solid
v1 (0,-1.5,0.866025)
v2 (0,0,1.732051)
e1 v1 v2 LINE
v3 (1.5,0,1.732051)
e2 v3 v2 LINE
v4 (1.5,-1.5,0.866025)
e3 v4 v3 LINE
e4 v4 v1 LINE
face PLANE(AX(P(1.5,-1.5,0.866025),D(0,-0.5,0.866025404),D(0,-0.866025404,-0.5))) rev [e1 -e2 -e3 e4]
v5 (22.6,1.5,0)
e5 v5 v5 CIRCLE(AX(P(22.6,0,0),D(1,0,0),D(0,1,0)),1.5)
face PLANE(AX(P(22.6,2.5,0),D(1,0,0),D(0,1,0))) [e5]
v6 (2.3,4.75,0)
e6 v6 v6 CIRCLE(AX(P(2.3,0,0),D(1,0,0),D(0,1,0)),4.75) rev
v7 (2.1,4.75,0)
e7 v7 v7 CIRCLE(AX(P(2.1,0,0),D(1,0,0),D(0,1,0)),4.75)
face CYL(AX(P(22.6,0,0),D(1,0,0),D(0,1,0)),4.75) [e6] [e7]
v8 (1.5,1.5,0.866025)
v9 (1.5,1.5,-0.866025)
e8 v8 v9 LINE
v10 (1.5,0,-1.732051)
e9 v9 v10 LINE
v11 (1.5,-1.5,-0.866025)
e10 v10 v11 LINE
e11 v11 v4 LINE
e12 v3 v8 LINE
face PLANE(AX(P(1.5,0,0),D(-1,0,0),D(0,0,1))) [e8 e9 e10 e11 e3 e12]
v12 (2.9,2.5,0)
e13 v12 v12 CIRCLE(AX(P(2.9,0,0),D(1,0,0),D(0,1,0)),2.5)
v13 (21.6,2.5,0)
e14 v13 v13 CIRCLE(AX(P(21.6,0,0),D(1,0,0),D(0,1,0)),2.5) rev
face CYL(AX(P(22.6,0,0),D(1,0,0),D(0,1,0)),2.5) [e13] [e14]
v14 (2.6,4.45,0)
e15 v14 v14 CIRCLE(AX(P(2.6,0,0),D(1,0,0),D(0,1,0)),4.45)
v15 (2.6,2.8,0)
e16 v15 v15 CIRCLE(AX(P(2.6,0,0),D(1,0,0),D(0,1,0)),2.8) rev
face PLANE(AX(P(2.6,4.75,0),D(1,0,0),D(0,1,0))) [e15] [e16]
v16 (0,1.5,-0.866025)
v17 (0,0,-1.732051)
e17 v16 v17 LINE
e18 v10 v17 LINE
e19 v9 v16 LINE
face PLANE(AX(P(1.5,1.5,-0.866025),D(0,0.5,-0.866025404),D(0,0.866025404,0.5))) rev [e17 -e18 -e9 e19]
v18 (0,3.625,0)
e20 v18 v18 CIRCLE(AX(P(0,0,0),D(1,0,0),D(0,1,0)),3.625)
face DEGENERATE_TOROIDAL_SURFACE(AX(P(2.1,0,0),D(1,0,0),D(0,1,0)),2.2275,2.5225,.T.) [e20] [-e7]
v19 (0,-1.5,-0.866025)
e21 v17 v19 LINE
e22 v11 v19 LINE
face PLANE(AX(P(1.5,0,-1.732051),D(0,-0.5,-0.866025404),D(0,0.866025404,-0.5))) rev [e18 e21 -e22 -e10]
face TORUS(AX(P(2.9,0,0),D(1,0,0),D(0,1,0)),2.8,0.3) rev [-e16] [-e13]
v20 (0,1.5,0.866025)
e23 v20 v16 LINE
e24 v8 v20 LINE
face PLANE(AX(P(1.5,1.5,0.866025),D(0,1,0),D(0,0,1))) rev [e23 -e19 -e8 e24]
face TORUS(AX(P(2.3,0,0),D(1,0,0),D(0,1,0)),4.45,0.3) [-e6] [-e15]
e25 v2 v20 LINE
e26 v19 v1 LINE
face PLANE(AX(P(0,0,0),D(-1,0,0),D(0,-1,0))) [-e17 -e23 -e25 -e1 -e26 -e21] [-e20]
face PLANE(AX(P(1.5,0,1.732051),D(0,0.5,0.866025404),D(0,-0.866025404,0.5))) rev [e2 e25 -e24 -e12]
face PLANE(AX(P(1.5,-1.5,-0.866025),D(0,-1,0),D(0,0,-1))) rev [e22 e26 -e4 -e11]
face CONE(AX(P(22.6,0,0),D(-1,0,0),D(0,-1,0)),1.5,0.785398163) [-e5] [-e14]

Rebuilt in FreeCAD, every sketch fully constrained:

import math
import FreeCAD as App
import Part
import Sketcher

V = App.Vector
Q = App.Units.Quantity


def edges_at(feature, points):
    """Names of the edges that pass closest to the given points."""
    edges = feature.Shape.Edges
    near = lambda p: min(range(len(edges)), key=lambda i: edges[i].distToShape(Part.Vertex(*p))[0])
    return sorted({f"Edge{near(p) + 1}" for p in points})


def add_polygon(sketch, points):
    """Adds a closed chain of lines whose ends are joined by coincident constraints."""
    first, n = sketch.GeometryCount, len(points)
    for a, b in zip(points, points[1:] + points[:1]):
        sketch.addGeometry(Part.LineSegment(App.Vector(*a, 0), App.Vector(*b, 0)), False)
    for i in range(n):
        sketch.addConstraint(Sketcher.Constraint("Coincident", first + i, 2, first + (i + 1) % n, 1))

doc = App.newDocument("Part")
body = doc.addObject("PartDesign::Body", "Body")

# Sketch on XY plane
sketch1 = body.newObject("Sketcher::SketchObject", "Sketch")
sketch1.AttachmentSupport = (doc.getObject("XY_Plane"), [""])
sketch1.MapMode = "FlatFace"
sketch1.addGeometry([
    Part.LineSegment(V(0, 3.6, 0), V(0, 0, 0)),  # 0
    Part.LineSegment(V(0, 0, 0), V(22.6, 0, 0)),  # 1
    Part.LineSegment(V(22.6, 0, 0), V(22.6, 2.5, 0)),  # 2
    Part.LineSegment(V(22.6, 2.5, 0), V(2.6, 2.5, 0)),  # 3
    Part.LineSegment(V(2.6, 2.5, 0), V(2.6, 4.8, 0)),  # 4
    Part.LineSegment(V(2.6, 4.8, 0), V(2.1, 4.8, 0)),  # 5
    Part.ArcOfCircle(Part.Circle(V(2.1, 2.2, 0), V(0, 0, 1), 2.5), math.radians(90), math.radians(146)),  # 6
], False)
sketch1.addConstraint([
    Sketcher.Constraint("Coincident", 0, 2, 1, 1),
    Sketcher.Constraint("Coincident", 1, 2, 2, 1),
    Sketcher.Constraint("Coincident", 2, 2, 3, 1),
    Sketcher.Constraint("Coincident", 3, 2, 4, 1),
    Sketcher.Constraint("Coincident", 4, 2, 5, 1),
    Sketcher.Constraint("Tangent", 5, 2, 6, 1),
    Sketcher.Constraint("Coincident", 6, 2, 0, 1),
    Sketcher.Constraint("Vertical", 0),
    Sketcher.Constraint("Horizontal", 1),
    Sketcher.Constraint("Vertical", 2),
    Sketcher.Constraint("Horizontal", 3),
    Sketcher.Constraint("Vertical", 4),
    Sketcher.Constraint("Horizontal", 5),
    Sketcher.Constraint("Coincident", 0, 2, -1, 1),
    Sketcher.Constraint("DistanceX", 3, 2, 3, 1, 20.0),
    Sketcher.Constraint("DistanceX", 1, 1, 1, 2, 22.6),
    Sketcher.Constraint("DistanceX", 5, 2, 5, 1, 0.5),
    Sketcher.Constraint("DistanceY", 2, 1, 2, 2, 2.5),
    Sketcher.Constraint("DistanceY", 4, 1, 4, 2, 2.25),
    Sketcher.Constraint("Radius", 6, 2.5225),
])
revolution = body.newObject("PartDesign::Revolution", "Revolution")
revolution.Profile = sketch1
revolution.ReferenceAxis = (sketch1, ["H_Axis"])
revolution.Angle = 360

# Sketch on YZ plane
sketch2 = body.newObject("Sketcher::SketchObject", "Sketch001")
sketch2.AttachmentSupport = (doc.getObject("YZ_Plane"), [""])
sketch2.MapMode = "FlatFace"
add_polygon(sketch2, [(1.5, 0.9), (1.5, -0.9), (0, -1.7), (-1.5, -0.9), (-1.5, 0.9), (0, 1.7)])  # lines 0-5
sketch2.addConstraint([
    Sketcher.Constraint("Vertical", 0),
    Sketcher.Constraint("Vertical", 3),
    Sketcher.Constraint("Symmetric", 0, 2, 3, 2, -1, 1),
    Sketcher.Constraint("Symmetric", 1, 2, 4, 2, -1, 1),
    Sketcher.Constraint("PointOnObject", 1, 2, -2),
    Sketcher.Constraint("Parallel", 2, 5),
    Sketcher.Constraint("Horizontal", 0, 2, 2, 2),
    Sketcher.Constraint("Angle", 1, Q("-150 deg")),
    Sketcher.Constraint("DistanceX", 2, 2, 0, 2, 3.0),
    Sketcher.Constraint("DistanceY", 0, 2, 0, 1, 1.732051),
])
pocket1 = body.newObject("PartDesign::Pocket", "Pocket")
pocket1.Profile = sketch2
pocket1.Length = 1.5
pocket1.Reversed = True
doc.recompute()

fillet = body.newObject("PartDesign::Fillet", "Fillet")
fillet.Base = (pocket1, edges_at(pocket1, [(2.6, -2.5, 0), (2.6, -4.75, 0)]))
fillet.Radius = 0.3
doc.recompute()

chamfer = body.newObject("PartDesign::Chamfer", "Chamfer")
chamfer.Base = (fillet, edges_at(fillet, [(22.6, -2.5, 0)]))
chamfer.Size = 1

doc.recompute()
